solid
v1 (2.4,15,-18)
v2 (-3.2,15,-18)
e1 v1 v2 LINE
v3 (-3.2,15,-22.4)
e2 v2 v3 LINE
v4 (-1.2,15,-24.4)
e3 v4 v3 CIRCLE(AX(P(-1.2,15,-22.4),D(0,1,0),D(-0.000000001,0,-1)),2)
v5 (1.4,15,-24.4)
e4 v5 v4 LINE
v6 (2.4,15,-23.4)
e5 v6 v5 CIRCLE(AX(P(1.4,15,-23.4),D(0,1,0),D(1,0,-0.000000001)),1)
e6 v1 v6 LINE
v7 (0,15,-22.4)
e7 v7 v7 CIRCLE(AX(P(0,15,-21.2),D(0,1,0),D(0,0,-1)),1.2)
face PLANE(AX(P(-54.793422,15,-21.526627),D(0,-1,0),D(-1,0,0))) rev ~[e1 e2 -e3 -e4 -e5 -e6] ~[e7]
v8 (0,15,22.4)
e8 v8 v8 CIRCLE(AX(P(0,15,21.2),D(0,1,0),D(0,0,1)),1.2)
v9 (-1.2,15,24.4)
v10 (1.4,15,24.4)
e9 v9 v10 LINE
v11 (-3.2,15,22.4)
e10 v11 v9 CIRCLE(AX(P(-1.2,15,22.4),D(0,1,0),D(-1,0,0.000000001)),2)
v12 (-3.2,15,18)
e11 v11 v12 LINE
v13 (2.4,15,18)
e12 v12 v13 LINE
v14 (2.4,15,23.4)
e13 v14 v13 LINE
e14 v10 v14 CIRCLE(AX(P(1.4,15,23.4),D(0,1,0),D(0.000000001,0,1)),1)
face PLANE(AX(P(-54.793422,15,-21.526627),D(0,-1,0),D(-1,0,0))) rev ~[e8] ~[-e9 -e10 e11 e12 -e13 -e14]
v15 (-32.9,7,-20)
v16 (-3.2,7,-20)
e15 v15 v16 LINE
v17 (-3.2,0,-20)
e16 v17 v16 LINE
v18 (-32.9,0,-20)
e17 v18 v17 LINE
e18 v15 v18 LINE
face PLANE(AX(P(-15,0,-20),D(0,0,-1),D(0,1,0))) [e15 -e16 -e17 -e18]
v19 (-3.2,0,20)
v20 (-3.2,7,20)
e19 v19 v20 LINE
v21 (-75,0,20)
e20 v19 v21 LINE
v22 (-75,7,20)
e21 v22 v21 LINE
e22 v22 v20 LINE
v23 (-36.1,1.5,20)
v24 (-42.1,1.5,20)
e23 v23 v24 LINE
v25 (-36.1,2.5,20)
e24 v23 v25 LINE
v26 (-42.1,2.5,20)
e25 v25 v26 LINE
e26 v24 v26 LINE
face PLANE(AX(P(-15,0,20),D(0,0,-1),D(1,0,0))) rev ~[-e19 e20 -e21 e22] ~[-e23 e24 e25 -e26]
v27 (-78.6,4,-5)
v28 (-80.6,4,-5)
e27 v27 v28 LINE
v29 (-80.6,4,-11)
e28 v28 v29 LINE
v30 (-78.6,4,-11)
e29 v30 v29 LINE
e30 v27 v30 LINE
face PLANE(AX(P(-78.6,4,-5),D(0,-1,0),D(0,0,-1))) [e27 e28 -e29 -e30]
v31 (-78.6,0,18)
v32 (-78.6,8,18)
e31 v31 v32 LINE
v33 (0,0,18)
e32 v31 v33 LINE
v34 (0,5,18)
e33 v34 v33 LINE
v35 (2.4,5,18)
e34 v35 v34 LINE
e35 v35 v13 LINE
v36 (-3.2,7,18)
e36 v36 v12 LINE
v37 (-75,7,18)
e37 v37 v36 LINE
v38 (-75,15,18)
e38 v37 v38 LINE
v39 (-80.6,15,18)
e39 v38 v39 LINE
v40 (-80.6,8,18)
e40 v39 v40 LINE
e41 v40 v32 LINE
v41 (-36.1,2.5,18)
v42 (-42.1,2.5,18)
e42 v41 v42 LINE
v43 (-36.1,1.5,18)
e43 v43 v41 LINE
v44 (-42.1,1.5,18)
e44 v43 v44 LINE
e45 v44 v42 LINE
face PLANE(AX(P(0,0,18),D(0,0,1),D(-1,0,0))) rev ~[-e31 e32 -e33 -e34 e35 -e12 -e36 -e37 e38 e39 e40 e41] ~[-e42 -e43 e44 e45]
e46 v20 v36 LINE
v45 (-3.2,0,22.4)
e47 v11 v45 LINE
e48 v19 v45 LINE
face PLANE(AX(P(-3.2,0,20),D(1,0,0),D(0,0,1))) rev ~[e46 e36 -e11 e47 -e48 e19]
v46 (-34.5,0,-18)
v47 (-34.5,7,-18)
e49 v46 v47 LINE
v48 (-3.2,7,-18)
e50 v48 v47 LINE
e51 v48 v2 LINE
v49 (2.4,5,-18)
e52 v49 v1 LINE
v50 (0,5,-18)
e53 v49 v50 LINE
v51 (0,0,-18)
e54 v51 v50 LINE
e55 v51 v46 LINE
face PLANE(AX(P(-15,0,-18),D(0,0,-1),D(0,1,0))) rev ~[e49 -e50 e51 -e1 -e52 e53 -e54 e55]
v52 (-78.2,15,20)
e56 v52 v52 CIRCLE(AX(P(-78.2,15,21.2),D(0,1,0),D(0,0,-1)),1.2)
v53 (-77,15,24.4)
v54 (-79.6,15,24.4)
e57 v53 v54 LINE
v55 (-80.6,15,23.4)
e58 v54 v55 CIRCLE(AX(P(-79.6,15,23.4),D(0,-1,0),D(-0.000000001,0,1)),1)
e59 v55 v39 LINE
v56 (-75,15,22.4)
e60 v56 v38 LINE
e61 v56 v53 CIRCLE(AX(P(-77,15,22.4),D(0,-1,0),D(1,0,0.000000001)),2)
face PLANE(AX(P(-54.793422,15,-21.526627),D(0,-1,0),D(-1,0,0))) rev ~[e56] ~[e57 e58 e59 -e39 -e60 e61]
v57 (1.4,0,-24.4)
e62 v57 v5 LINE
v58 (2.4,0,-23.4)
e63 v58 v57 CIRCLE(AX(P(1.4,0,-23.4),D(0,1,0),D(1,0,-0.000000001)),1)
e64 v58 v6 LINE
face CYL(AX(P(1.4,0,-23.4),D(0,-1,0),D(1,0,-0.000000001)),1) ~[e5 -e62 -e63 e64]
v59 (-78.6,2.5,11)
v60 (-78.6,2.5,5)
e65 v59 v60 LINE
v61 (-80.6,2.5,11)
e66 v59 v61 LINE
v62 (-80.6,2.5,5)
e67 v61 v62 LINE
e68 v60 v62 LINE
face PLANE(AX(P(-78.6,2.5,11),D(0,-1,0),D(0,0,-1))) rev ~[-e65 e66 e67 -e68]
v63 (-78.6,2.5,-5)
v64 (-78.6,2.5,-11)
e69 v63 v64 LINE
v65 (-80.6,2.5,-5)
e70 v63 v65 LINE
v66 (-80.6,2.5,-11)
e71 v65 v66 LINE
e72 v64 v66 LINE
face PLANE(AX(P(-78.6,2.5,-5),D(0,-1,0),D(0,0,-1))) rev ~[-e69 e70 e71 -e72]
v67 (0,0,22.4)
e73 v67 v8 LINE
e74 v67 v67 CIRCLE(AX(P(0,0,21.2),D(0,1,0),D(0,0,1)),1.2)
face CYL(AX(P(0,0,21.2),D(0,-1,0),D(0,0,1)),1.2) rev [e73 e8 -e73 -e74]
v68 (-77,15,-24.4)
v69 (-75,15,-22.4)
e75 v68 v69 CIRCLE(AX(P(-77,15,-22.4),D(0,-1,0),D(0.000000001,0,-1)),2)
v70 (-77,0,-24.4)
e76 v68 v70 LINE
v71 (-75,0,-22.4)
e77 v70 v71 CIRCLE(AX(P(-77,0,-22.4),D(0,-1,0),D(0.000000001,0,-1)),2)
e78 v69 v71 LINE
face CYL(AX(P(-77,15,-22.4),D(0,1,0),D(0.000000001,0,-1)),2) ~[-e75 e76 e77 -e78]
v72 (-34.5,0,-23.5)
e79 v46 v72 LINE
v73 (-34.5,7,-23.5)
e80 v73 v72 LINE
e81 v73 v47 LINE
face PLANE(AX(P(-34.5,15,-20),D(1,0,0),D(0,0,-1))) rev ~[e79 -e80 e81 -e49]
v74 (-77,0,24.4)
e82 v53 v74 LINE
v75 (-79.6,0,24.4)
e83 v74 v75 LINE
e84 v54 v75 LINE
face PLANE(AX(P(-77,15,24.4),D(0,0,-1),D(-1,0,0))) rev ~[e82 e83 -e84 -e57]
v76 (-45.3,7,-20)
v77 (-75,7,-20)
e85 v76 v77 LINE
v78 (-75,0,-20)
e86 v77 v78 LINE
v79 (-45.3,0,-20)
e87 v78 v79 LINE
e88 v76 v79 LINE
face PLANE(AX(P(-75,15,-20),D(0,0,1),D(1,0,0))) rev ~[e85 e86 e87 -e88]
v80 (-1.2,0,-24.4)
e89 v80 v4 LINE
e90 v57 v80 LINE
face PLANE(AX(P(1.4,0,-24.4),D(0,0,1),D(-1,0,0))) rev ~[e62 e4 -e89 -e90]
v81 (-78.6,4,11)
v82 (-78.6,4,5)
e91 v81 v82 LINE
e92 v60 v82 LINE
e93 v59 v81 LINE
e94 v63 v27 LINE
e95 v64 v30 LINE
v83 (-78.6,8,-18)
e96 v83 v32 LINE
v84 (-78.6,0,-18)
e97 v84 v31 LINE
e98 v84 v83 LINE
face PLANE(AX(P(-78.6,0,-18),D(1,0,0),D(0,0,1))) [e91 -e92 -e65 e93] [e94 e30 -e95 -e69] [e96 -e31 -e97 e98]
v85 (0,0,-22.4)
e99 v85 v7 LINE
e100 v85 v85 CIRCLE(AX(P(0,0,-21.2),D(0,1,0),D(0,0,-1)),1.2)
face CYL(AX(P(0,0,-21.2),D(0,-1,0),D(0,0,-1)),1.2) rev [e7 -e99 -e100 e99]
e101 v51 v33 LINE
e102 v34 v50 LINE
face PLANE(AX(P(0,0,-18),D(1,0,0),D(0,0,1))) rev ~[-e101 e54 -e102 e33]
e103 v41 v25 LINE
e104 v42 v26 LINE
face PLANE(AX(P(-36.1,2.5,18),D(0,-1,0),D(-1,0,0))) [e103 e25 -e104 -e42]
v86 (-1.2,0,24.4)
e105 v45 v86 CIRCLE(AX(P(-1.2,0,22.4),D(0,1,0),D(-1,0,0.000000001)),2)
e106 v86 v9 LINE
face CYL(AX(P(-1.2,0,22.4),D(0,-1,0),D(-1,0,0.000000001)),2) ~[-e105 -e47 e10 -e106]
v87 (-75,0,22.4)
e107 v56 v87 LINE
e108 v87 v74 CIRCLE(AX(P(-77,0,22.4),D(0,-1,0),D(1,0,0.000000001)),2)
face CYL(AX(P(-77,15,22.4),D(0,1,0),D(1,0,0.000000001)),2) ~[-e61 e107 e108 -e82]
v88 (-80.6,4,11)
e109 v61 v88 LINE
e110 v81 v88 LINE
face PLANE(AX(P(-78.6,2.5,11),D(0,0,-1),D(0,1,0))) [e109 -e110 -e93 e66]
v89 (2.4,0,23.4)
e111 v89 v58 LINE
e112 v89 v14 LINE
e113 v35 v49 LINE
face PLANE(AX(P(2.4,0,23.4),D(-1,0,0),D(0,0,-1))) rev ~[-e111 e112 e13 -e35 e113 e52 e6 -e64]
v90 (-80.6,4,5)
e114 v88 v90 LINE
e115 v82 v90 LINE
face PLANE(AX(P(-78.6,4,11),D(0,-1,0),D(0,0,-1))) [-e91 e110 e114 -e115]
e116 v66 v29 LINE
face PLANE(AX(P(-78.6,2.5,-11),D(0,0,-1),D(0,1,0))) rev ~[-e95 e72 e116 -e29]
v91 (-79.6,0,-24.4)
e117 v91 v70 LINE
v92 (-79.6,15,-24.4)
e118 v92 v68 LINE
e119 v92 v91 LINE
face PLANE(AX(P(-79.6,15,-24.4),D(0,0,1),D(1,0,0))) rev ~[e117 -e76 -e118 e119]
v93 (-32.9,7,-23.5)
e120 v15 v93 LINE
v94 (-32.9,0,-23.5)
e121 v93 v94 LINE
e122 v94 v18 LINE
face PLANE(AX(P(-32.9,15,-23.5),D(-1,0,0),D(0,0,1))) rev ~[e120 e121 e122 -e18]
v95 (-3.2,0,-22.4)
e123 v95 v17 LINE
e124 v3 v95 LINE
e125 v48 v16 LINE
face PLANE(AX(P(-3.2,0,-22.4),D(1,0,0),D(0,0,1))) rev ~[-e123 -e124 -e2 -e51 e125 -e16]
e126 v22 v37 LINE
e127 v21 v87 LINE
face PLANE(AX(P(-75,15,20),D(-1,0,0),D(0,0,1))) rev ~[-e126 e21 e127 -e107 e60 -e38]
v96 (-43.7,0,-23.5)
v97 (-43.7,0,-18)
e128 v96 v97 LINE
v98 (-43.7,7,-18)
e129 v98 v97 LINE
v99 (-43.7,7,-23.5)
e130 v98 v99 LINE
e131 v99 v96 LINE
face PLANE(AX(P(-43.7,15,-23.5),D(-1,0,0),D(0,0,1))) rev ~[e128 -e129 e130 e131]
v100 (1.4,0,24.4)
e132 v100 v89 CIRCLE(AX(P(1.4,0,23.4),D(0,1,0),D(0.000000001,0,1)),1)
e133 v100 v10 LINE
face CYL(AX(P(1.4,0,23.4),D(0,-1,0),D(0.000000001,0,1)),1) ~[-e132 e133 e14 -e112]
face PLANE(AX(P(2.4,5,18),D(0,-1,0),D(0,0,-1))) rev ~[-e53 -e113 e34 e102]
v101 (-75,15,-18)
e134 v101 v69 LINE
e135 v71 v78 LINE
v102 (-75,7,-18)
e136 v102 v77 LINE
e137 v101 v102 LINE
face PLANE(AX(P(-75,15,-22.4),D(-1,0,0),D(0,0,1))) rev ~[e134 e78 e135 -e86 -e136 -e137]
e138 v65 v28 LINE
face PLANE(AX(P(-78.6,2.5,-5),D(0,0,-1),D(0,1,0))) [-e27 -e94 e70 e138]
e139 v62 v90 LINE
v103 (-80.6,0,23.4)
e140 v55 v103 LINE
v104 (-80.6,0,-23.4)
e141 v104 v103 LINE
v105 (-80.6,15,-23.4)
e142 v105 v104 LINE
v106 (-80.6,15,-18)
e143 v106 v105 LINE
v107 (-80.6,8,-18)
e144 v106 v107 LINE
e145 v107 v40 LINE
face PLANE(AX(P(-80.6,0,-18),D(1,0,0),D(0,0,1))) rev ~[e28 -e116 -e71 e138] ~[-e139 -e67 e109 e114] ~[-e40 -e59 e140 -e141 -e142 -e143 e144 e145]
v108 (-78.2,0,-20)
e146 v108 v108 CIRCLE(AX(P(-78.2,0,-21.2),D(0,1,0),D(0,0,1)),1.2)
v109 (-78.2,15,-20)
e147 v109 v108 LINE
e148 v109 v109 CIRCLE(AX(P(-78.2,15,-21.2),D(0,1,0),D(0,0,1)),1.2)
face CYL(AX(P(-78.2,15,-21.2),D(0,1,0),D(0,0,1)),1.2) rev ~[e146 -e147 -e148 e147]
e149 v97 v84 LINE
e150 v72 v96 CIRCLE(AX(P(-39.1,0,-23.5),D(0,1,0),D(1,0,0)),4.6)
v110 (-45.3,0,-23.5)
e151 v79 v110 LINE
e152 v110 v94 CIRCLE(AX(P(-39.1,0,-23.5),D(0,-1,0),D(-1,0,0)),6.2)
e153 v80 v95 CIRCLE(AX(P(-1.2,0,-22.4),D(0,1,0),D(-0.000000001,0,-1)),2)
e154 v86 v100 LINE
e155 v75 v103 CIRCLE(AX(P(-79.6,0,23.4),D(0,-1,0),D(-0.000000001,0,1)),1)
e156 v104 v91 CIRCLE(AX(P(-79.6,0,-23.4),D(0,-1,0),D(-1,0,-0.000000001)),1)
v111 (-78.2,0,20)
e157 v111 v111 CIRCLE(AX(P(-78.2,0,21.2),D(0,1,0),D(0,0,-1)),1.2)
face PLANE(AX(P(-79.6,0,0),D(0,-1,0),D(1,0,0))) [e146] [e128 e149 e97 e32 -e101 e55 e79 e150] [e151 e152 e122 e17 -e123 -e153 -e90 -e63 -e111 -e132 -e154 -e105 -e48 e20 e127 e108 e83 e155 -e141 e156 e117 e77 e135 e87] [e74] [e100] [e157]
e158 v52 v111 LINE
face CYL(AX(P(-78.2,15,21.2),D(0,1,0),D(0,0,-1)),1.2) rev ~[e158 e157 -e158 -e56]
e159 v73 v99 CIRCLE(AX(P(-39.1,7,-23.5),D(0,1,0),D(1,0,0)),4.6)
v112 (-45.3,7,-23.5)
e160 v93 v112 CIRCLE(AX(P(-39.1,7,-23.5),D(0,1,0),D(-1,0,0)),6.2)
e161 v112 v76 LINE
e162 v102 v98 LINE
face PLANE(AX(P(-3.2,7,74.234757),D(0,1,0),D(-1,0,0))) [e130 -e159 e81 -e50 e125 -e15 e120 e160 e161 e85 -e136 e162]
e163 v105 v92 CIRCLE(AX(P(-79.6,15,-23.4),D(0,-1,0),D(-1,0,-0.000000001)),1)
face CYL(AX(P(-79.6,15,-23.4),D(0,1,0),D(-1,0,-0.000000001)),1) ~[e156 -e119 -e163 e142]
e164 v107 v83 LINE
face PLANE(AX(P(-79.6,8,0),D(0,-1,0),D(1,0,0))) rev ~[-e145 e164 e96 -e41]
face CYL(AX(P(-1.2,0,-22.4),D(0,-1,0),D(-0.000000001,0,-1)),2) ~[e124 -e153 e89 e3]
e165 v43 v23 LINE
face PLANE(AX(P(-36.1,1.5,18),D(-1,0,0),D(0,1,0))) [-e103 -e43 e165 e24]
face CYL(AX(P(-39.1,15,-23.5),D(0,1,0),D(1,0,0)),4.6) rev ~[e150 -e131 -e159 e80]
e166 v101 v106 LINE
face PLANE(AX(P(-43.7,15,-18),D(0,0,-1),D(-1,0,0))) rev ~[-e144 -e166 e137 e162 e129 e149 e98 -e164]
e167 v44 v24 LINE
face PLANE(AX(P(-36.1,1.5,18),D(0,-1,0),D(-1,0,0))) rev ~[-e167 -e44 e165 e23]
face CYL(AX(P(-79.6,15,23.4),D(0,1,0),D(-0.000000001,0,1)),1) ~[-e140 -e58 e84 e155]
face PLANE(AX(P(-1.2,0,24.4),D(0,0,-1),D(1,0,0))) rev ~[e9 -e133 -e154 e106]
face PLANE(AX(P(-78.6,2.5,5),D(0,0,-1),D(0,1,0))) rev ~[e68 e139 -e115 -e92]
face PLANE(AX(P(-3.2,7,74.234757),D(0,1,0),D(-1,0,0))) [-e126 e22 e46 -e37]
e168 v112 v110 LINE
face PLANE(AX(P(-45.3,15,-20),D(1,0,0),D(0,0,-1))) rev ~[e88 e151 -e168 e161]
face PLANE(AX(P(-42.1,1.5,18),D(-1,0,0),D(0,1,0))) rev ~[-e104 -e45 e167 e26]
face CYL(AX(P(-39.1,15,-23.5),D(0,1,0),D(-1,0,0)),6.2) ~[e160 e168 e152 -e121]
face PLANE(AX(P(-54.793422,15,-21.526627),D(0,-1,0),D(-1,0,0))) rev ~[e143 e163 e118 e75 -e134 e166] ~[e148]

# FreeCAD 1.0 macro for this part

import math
import FreeCAD as App
import Part
import Sketcher

V = App.Vector
Q = App.Units.Quantity


def add_polygon(sketch, points):
    """Adds a closed chain of lines whose ends are joined by coincident constraints."""
    first, n = sketch.GeometryCount, len(points)
    for a, b in zip(points, points[1:] + points[:1]):
        sketch.addGeometry(Part.LineSegment(App.Vector(*a, 0), App.Vector(*b, 0)), False)
    for i in range(n):
        sketch.addConstraint(Sketcher.Constraint("Coincident", first + i, 2, first + (i + 1) % n, 1))

doc = App.newDocument("Part")
body = doc.addObject("PartDesign::Body", "Body")

# Sketch on XZ plane
sketch1 = body.newObject("Sketcher::SketchObject", "Sketch")
sketch1.AttachmentSupport = (doc.getObject("XZ_Plane"), [""])
sketch1.MapMode = "FlatFace"
sketch1.addGeometry(Part.LineSegment(V(2.4, 23.4, 0), V(2.4, -23.4, 0)), False)
sketch1.addGeometry(Part.ArcOfCircle(Part.Circle(V(1.4, -23.4, 0), V(0, 0, 1), 1), math.radians(-90), math.radians(0)), False)
sketch1.addGeometry(Part.LineSegment(V(1.4, -24.4, 0), V(-1.2, -24.4, 0)), False)
sketch1.addGeometry(Part.ArcOfCircle(Part.Circle(V(-1.2, -22.4, 0), V(0, 0, 1), 2), math.radians(-180), math.radians(-90)), False)
sketch1.addGeometry(Part.LineSegment(V(-3.2, -22.4, 0), V(-3.2, -20, 0)), False)
sketch1.addGeometry(Part.LineSegment(V(-3.2, -20, 0), V(-15, -20, 0)), False)
sketch1.addGeometry(Part.LineSegment(V(-15, -20, 0), V(-15, -18, 0)), False)
sketch1.addGeometry(Part.LineSegment(V(-15, -18, 0), V(0, -18, 0)), False)
sketch1.addGeometry(Part.LineSegment(V(0, -18, 0), V(0, 18, 0)), False)
sketch1.addGeometry(Part.LineSegment(V(0, 18, 0), V(-15, 18, 0)), False)
sketch1.addGeometry(Part.LineSegment(V(-15, 18, 0), V(-15, 20, 0)), False)
sketch1.addGeometry(Part.LineSegment(V(-15, 20, 0), V(-3.2, 20, 0)), False)
sketch1.addGeometry(Part.LineSegment(V(-3.2, 20, 0), V(-3.2, 22.4, 0)), False)
sketch1.addGeometry(Part.ArcOfCircle(Part.Circle(V(-1.2, 22.4, 0), V(0, 0, 1), 2), math.radians(90), math.radians(180)), False)
sketch1.addGeometry(Part.LineSegment(V(-1.2, 24.4, 0), V(1.4, 24.4, 0)), False)
sketch1.addGeometry(Part.ArcOfCircle(Part.Circle(V(1.4, 23.4, 0), V(0, 0, 1), 1), math.radians(0), math.radians(90)), False)
sketch1.addGeometry(Part.Circle(V(0, 21.2, 0), V(0, 0, 1), 1.2), False)
sketch1.addGeometry(Part.Circle(V(0, -21.2, 0), V(0, 0, 1), 1.2), False)
sketch1.addConstraint(Sketcher.Constraint("Tangent", 0, 2, 1, 2))
sketch1.addConstraint(Sketcher.Constraint("Tangent", 1, 1, 2, 1))
sketch1.addConstraint(Sketcher.Constraint("Tangent", 2, 2, 3, 2))
sketch1.addConstraint(Sketcher.Constraint("Tangent", 3, 1, 4, 1))
sketch1.addConstraint(Sketcher.Constraint("Coincident", 4, 2, 5, 1))
sketch1.addConstraint(Sketcher.Constraint("Coincident", 5, 2, 6, 1))
sketch1.addConstraint(Sketcher.Constraint("Coincident", 6, 2, 7, 1))
sketch1.addConstraint(Sketcher.Constraint("Coincident", 7, 2, 8, 1))
sketch1.addConstraint(Sketcher.Constraint("Coincident", 8, 2, 9, 1))
sketch1.addConstraint(Sketcher.Constraint("Coincident", 9, 2, 10, 1))
sketch1.addConstraint(Sketcher.Constraint("Coincident", 10, 2, 11, 1))
sketch1.addConstraint(Sketcher.Constraint("Coincident", 11, 2, 12, 1))
sketch1.addConstraint(Sketcher.Constraint("Tangent", 12, 2, 13, 2))
sketch1.addConstraint(Sketcher.Constraint("Tangent", 13, 1, 14, 1))
sketch1.addConstraint(Sketcher.Constraint("Tangent", 14, 2, 15, 2))
sketch1.addConstraint(Sketcher.Constraint("Tangent", 15, 1, 0, 1))
sketch1.addConstraint(Sketcher.Constraint("Vertical", 0))
sketch1.addConstraint(Sketcher.Constraint("Horizontal", 2))
sketch1.addConstraint(Sketcher.Constraint("Vertical", 4))
sketch1.addConstraint(Sketcher.Constraint("Horizontal", 5))
sketch1.addConstraint(Sketcher.Constraint("Vertical", 6))
sketch1.addConstraint(Sketcher.Constraint("Horizontal", 7))
sketch1.addConstraint(Sketcher.Constraint("Vertical", 8))
sketch1.addConstraint(Sketcher.Constraint("Horizontal", 9))
sketch1.addConstraint(Sketcher.Constraint("Vertical", 10))
sketch1.addConstraint(Sketcher.Constraint("Horizontal", 11))
sketch1.addConstraint(Sketcher.Constraint("Vertical", 12))
sketch1.addConstraint(Sketcher.Constraint("Horizontal", 14))
sketch1.addConstraint(Sketcher.Constraint("Equal", 3, 13))
sketch1.addConstraint(Sketcher.Constraint("Equal", 1, 15))
sketch1.addConstraint(Sketcher.Constraint("Equal", 16, 17))
sketch1.addConstraint(Sketcher.Constraint("Symmetric", 16, 3, 17, 3, -1, 1))
sketch1.addConstraint(Sketcher.Constraint("Symmetric", 7, 2, 8, 2, -1, 1))
sketch1.addConstraint(Sketcher.Constraint("Symmetric", 3, 3, 13, 3, -1))
sketch1.addConstraint(Sketcher.Constraint("Symmetric", 5, 2, 10, 2, -1))
sketch1.addConstraint(Sketcher.Constraint("PointOnObject", 16, 3, -2))
sketch1.addConstraint(Sketcher.Constraint("Radius", 1, Q("1 mm")))
sketch1.addConstraint(Sketcher.Constraint("Radius", 3, Q("2 mm")))
sketch1.addConstraint(Sketcher.Constraint("Diameter", 16, Q("2.4 mm")))
sketch1.addConstraint(Sketcher.Constraint("DistanceX", 7, 1, 7, 2, Q("15 mm")))
sketch1.addConstraint(Sketcher.Constraint("DistanceY", 6, 1, 6, 2, Q("2 mm")))
sketch1.addConstraint(Sketcher.Constraint("DistanceY", 8, 1, 8, 2, Q("36 mm")))
sketch1.addConstraint(Sketcher.Constraint("DistanceX", 2, 2, 2, 1, Q("2.6 mm")))
sketch1.addConstraint(Sketcher.Constraint("DistanceX", 5, 2, 5, 1, Q("11.8 mm")))
sketch1.addConstraint(Sketcher.Constraint("DistanceY", 0, 2, 0, 1, Q("46.8 mm")))
sketch1.addConstraint(Sketcher.Constraint("DistanceY", -1, 1, 16, 3, Q("21.2 mm")))
pad1 = body.newObject("PartDesign::Pad", "Pad")
pad1.Profile = sketch1
pad1.Length = 15
pad1.Reversed = True

# Sketch on XZ plane
sketch2 = body.newObject("Sketcher::SketchObject", "Sketch001")
sketch2.AttachmentSupport = (doc.getObject("XZ_Plane"), [""])
sketch2.MapMode = "FlatFace"
add_polygon(sketch2, [(-15, -18), (-15, 18), (0, 18), (0, -18)])  # lines 0-3
sketch2.addConstraint(Sketcher.Constraint("Vertical", 0))
sketch2.addConstraint(Sketcher.Constraint("Horizontal", 1))
sketch2.addConstraint(Sketcher.Constraint("Vertical", 2))
sketch2.addConstraint(Sketcher.Constraint("Horizontal", 3))
sketch2.addConstraint(Sketcher.Constraint("Symmetric", 1, 2, 2, 2, -1, 1))
sketch2.addConstraint(Sketcher.Constraint("DistanceX", 1, 1, 1, 2, Q("15 mm")))
sketch2.addConstraint(Sketcher.Constraint("DistanceY", 0, 1, 0, 2, Q("36 mm")))
pad2 = body.newObject("PartDesign::Pad", "Pad001")
pad2.Profile = sketch2
pad2.Length = 1.5
pad2.Reversed = True

# Sketch on YZ plane
sketch3 = body.newObject("Sketcher::SketchObject", "Sketch002")
sketch3.AttachmentSupport = (doc.getObject("YZ_Plane"), [""])
sketch3.MapMode = "FlatFace"
sketch3.AttachmentOffset = App.Placement(V(0, 0, -15), App.Rotation())
add_polygon(sketch3, [(0, -18), (15, -18), (15, -20), (0, -20)])  # lines 0-3
sketch3.addConstraint(Sketcher.Constraint("Horizontal", 0))
sketch3.addConstraint(Sketcher.Constraint("Vertical", 1))
sketch3.addConstraint(Sketcher.Constraint("Horizontal", 2))
sketch3.addConstraint(Sketcher.Constraint("Vertical", 3))
sketch3.addConstraint(Sketcher.Constraint("PointOnObject", 2, 2, -2))
sketch3.addConstraint(Sketcher.Constraint("DistanceX", 0, 1, 0, 2, Q("15 mm")))
sketch3.addConstraint(Sketcher.Constraint("DistanceY", 1, 2, 1, 1, Q("2 mm")))
sketch3.addConstraint(Sketcher.Constraint("DistanceY", 0, 2, -1, 1, Q("18 mm")))
pad3 = body.newObject("PartDesign::Pad", "Pad002")
pad3.Profile = sketch3
pad3.Length = 19.5
pad3.Reversed = True

# Sketch on XZ plane
sketch4 = body.newObject("Sketcher::SketchObject", "Sketch003")
sketch4.AttachmentSupport = (doc.getObject("XZ_Plane"), [""])
sketch4.MapMode = "FlatFace"
sketch4.AttachmentOffset = App.Placement(V(0, 0, -15), App.Rotation())
sketch4.addGeometry(Part.LineSegment(V(-45.3, -23.5, 0), V(-45.3, -20, 0)), False)
sketch4.addGeometry(Part.LineSegment(V(-45.3, -20, 0), V(-75, -20, 0)), False)
sketch4.addGeometry(Part.LineSegment(V(-75, -20, 0), V(-75, -22.4, 0)), False)
sketch4.addGeometry(Part.ArcOfCircle(Part.Circle(V(-77, -22.4, 0), V(0, 0, 1), 2), math.radians(-90), math.radians(0)), False)
sketch4.addGeometry(Part.LineSegment(V(-77, -24.4, 0), V(-79.6, -24.4, 0)), False)
sketch4.addGeometry(Part.ArcOfCircle(Part.Circle(V(-79.6, -23.4, 0), V(0, 0, 1), 1), math.radians(-180), math.radians(-90)), False)
sketch4.addGeometry(Part.LineSegment(V(-80.6, -23.4, 0), V(-80.6, -18, 0)), False)
sketch4.addGeometry(Part.LineSegment(V(-80.6, -18, 0), V(-43.7, -18, 0)), False)
sketch4.addGeometry(Part.LineSegment(V(-43.7, -18, 0), V(-43.7, -23.5, 0)), False)
sketch4.addGeometry(Part.ArcOfCircle(Part.Circle(V(-39.1, -23.5, 0), V(0, 0, 1), 4.6), math.radians(180), math.radians(360)), False)
sketch4.addGeometry(Part.LineSegment(V(-34.5, -23.5, 0), V(-34.5, -20, 0)), False)
sketch4.addGeometry(Part.LineSegment(V(-34.5, -20, 0), V(-32.9, -20, 0)), False)
sketch4.addGeometry(Part.LineSegment(V(-32.9, -20, 0), V(-32.9, -23.5, 0)), False)
sketch4.addGeometry(Part.ArcOfCircle(Part.Circle(V(-39.1, -23.5, 0), V(0, 0, 1), 6.2), math.radians(180), math.radians(360)), False)
sketch4.addGeometry(Part.Circle(V(-78.2, -21.2, 0), V(0, 0, 1), 1.2), False)
sketch4.addGeometry(Part.LineSegment(V(-15, 18, 0), V(-80.6, 18, 0)), False)
sketch4.addGeometry(Part.LineSegment(V(-80.6, 18, 0), V(-80.6, 23.4, 0)), False)
sketch4.addGeometry(Part.ArcOfCircle(Part.Circle(V(-79.6, 23.4, 0), V(0, 0, 1), 1), math.radians(90), math.radians(180)), False)
sketch4.addGeometry(Part.LineSegment(V(-79.6, 24.4, 0), V(-77, 24.4, 0)), False)
sketch4.addGeometry(Part.ArcOfCircle(Part.Circle(V(-77, 22.4, 0), V(0, 0, 1), 2), math.radians(0), math.radians(90)), False)
sketch4.addGeometry(Part.LineSegment(V(-75, 22.4, 0), V(-75, 20, 0)), False)
sketch4.addGeometry(Part.LineSegment(V(-75, 20, 0), V(-15, 20, 0)), False)
sketch4.addGeometry(Part.LineSegment(V(-15, 20, 0), V(-15, 18, 0)), False)
sketch4.addGeometry(Part.Circle(V(-78.2, 21.2, 0), V(0, 0, 1), 1.2), False)
sketch4.addConstraint(Sketcher.Constraint("Coincident", 0, 2, 1, 1))
sketch4.addConstraint(Sketcher.Constraint("Coincident", 1, 2, 2, 1))
sketch4.addConstraint(Sketcher.Constraint("Tangent", 2, 2, 3, 2))
sketch4.addConstraint(Sketcher.Constraint("Tangent", 3, 1, 4, 1))
sketch4.addConstraint(Sketcher.Constraint("Tangent", 4, 2, 5, 2))
sketch4.addConstraint(Sketcher.Constraint("Tangent", 5, 1, 6, 1))
sketch4.addConstraint(Sketcher.Constraint("Coincident", 6, 2, 7, 1))
sketch4.addConstraint(Sketcher.Constraint("Coincident", 7, 2, 8, 1))
sketch4.addConstraint(Sketcher.Constraint("Tangent", 8, 2, 9, 1))
sketch4.addConstraint(Sketcher.Constraint("Tangent", 9, 2, 10, 1))
sketch4.addConstraint(Sketcher.Constraint("Coincident", 10, 2, 11, 1))
sketch4.addConstraint(Sketcher.Constraint("Coincident", 11, 2, 12, 1))
sketch4.addConstraint(Sketcher.Constraint("Tangent", 12, 2, 13, 2))
sketch4.addConstraint(Sketcher.Constraint("Tangent", 13, 1, 0, 1))
sketch4.addConstraint(Sketcher.Constraint("Coincident", 15, 2, 16, 1))
sketch4.addConstraint(Sketcher.Constraint("Tangent", 16, 2, 17, 2))
sketch4.addConstraint(Sketcher.Constraint("Tangent", 17, 1, 18, 1))
sketch4.addConstraint(Sketcher.Constraint("Tangent", 18, 2, 19, 2))
sketch4.addConstraint(Sketcher.Constraint("Tangent", 19, 1, 20, 1))
sketch4.addConstraint(Sketcher.Constraint("Coincident", 20, 2, 21, 1))
sketch4.addConstraint(Sketcher.Constraint("Coincident", 21, 2, 22, 1))
sketch4.addConstraint(Sketcher.Constraint("Coincident", 22, 2, 15, 1))
sketch4.addConstraint(Sketcher.Constraint("Vertical", 0))
sketch4.addConstraint(Sketcher.Constraint("Horizontal", 1))
sketch4.addConstraint(Sketcher.Constraint("Vertical", 2))
sketch4.addConstraint(Sketcher.Constraint("Horizontal", 4))
sketch4.addConstraint(Sketcher.Constraint("Vertical", 6))
sketch4.addConstraint(Sketcher.Constraint("Horizontal", 7))
sketch4.addConstraint(Sketcher.Constraint("Vertical", 8))
sketch4.addConstraint(Sketcher.Constraint("Vertical", 10))
sketch4.addConstraint(Sketcher.Constraint("Horizontal", 11))
sketch4.addConstraint(Sketcher.Constraint("Vertical", 12))
sketch4.addConstraint(Sketcher.Constraint("Horizontal", 15))
sketch4.addConstraint(Sketcher.Constraint("Vertical", 16))
sketch4.addConstraint(Sketcher.Constraint("Horizontal", 18))
sketch4.addConstraint(Sketcher.Constraint("Vertical", 20))
sketch4.addConstraint(Sketcher.Constraint("Horizontal", 21))
sketch4.addConstraint(Sketcher.Constraint("Vertical", 22))
sketch4.addConstraint(Sketcher.Constraint("Coincident", 13, 3, 9, 3))
sketch4.addConstraint(Sketcher.Constraint("Equal", 5, 17))
sketch4.addConstraint(Sketcher.Constraint("Equal", 3, 19))
sketch4.addConstraint(Sketcher.Constraint("Equal", 14, 23))
sketch4.addConstraint(Sketcher.Constraint("Symmetric", 5, 3, 17, 3, -1))
sketch4.addConstraint(Sketcher.Constraint("Symmetric", 14, 3, 23, 3, -1))
sketch4.addConstraint(Sketcher.Constraint("Symmetric", 1, 2, 20, 2, -1))
sketch4.addConstraint(Sketcher.Constraint("Horizontal", 1, 2, 10, 2))
sketch4.addConstraint(Sketcher.Constraint("Equal", 6, 16))
sketch4.addConstraint(Sketcher.Constraint("Radius", 3, Q("2 mm")))
sketch4.addConstraint(Sketcher.Constraint("Radius", 5, Q("1 mm")))
sketch4.addConstraint(Sketcher.Constraint("Diameter", 14, Q("2.4 mm")))
sketch4.addConstraint(Sketcher.Constraint("Radius", 9, Q("4.6 mm")))
sketch4.addConstraint(Sketcher.Constraint("Radius", 13, Q("6.2 mm")))
sketch4.addConstraint(Sketcher.Constraint("DistanceX", 21, 1, 21, 2, Q("60 mm")))
sketch4.addConstraint(Sketcher.Constraint("DistanceY", 22, 2, 22, 1, Q("2 mm")))
sketch4.addConstraint(Sketcher.Constraint("DistanceX", 1, 2, 1, 1, Q("29.7 mm")))
sketch4.addConstraint(Sketcher.Constraint("DistanceX", 4, 2, 4, 1, Q("2.6 mm")))
sketch4.addConstraint(Sketcher.Constraint("DistanceY", 0, 1, 0, 2, Q("3.5 mm")))
sketch4.addConstraint(Sketcher.Constraint("DistanceY", 2, 2, 2, 1, Q("2.4 mm")))
sketch4.addConstraint(Sketcher.Constraint("DistanceX", 3, 3, -1, 1, Q("77 mm")))
sketch4.addConstraint(Sketcher.Constraint("DistanceY", 0, 2, -1, 1, Q("20 mm")))
sketch4.addConstraint(Sketcher.Constraint("DistanceX", 14, 3, -1, 1, Q("78.2 mm")))
sketch4.addConstraint(Sketcher.Constraint("DistanceY", 14, 3, -1, 1, Q("21.2 mm")))
pad4 = body.newObject("PartDesign::Pad", "Pad003")
pad4.Profile = sketch4
pad4.Length = 15

# Sketch on XZ plane
sketch5 = body.newObject("Sketcher::SketchObject", "Sketch004")
sketch5.AttachmentSupport = (doc.getObject("XZ_Plane"), [""])
sketch5.MapMode = "FlatFace"
add_polygon(sketch5, [(-80.6, 18), (-80.6, -18), (-78.6, -18), (-78.6, 18)])  # lines 0-3
sketch5.addConstraint(Sketcher.Constraint("Vertical", 0))
sketch5.addConstraint(Sketcher.Constraint("Horizontal", 1))
sketch5.addConstraint(Sketcher.Constraint("Vertical", 2))
sketch5.addConstraint(Sketcher.Constraint("Horizontal", 3))
sketch5.addConstraint(Sketcher.Constraint("DistanceX", 1, 1, 1, 2, Q("2 mm")))
sketch5.addConstraint(Sketcher.Constraint("DistanceY", 0, 2, 0, 1, Q("36 mm")))
sketch5.addConstraint(Sketcher.Constraint("DistanceY", 0, 2, -1, 1, Q("18 mm")))
sketch5.addConstraint(Sketcher.Constraint("DistanceX", 0, 2, -1, 1, Q("80.6 mm")))
pad5 = body.newObject("PartDesign::Pad", "Pad004")
pad5.Profile = sketch5
pad5.Length = 8
pad5.Reversed = True

# Sketch on XY plane
sketch6 = body.newObject("Sketcher::SketchObject", "Sketch005")
sketch6.AttachmentSupport = (doc.getObject("XY_Plane"), [""])
sketch6.MapMode = "FlatFace"
sketch6.AttachmentOffset = App.Placement(V(0, 0, 18), App.Rotation())
add_polygon(sketch6, [(-36.1, 2.5), (-36.1, 1.5), (-42.1, 1.5), (-42.1, 2.5)])  # lines 0-3
sketch6.addConstraint(Sketcher.Constraint("Vertical", 0))
sketch6.addConstraint(Sketcher.Constraint("Horizontal", 1))
sketch6.addConstraint(Sketcher.Constraint("Vertical", 2))
sketch6.addConstraint(Sketcher.Constraint("Horizontal", 3))
sketch6.addConstraint(Sketcher.Constraint("DistanceX", 1, 2, 1, 1, Q("6 mm")))
sketch6.addConstraint(Sketcher.Constraint("DistanceY", 0, 2, 0, 1, Q("1 mm")))
sketch6.addConstraint(Sketcher.Constraint("DistanceX", 0, 2, -1, 1, Q("36.1 mm")))
sketch6.addConstraint(Sketcher.Constraint("DistanceY", -1, 1, 0, 2, Q("1.5 mm")))
pocket1 = body.newObject("PartDesign::Pocket", "Pocket")
pocket1.Profile = sketch6
pocket1.Length = 5
pocket1.Reversed = True

# Sketch on YZ plane
sketch7 = body.newObject("Sketcher::SketchObject", "Sketch006")
sketch7.AttachmentSupport = (doc.getObject("YZ_Plane"), [""])
sketch7.MapMode = "FlatFace"
sketch7.AttachmentOffset = App.Placement(V(0, 0, -78.6), App.Rotation())
add_polygon(sketch7, [(4, -5), (2.5, -5), (2.5, -11), (4, -11)])  # lines 0-3
add_polygon(sketch7, [(4, 11), (2.5, 11), (2.5, 5), (4, 5)])  # lines 4-7
sketch7.addConstraint(Sketcher.Constraint("Horizontal", 0))
sketch7.addConstraint(Sketcher.Constraint("Vertical", 1))
sketch7.addConstraint(Sketcher.Constraint("Horizontal", 2))
sketch7.addConstraint(Sketcher.Constraint("Vertical", 3))
sketch7.addConstraint(Sketcher.Constraint("Horizontal", 4))
sketch7.addConstraint(Sketcher.Constraint("Vertical", 5))
sketch7.addConstraint(Sketcher.Constraint("Horizontal", 6))
sketch7.addConstraint(Sketcher.Constraint("Vertical", 7))
sketch7.addConstraint(Sketcher.Constraint("Symmetric", 1, 2, 4, 2, -1))
sketch7.addConstraint(Sketcher.Constraint("Symmetric", 3, 2, 6, 2, -1))
sketch7.addConstraint(Sketcher.Constraint("DistanceY", 1, 2, 1, 1, Q("6 mm")))
sketch7.addConstraint(Sketcher.Constraint("DistanceX", 0, 2, 0, 1, Q("1.5 mm")))
sketch7.addConstraint(Sketcher.Constraint("DistanceY", 0, 2, -1, 1, Q("5 mm")))
sketch7.addConstraint(Sketcher.Constraint("DistanceX", -1, 1, 2, 2, Q("4 mm")))
pocket2 = body.newObject("PartDesign::Pocket", "Pocket001")
pocket2.Profile = sketch7
pocket2.Length = 5

# Sketch on XY plane
sketch8 = body.newObject("Sketcher::SketchObject", "Sketch007")
sketch8.AttachmentSupport = (doc.getObject("XY_Plane"), [""])
sketch8.MapMode = "FlatFace"
sketch8.AttachmentOffset = App.Placement(V(0, 0, -20), App.Rotation())
add_polygon(sketch8, [(-3, 15), (-3, 7), (-75, 7), (-75, 15)])  # lines 0-3
sketch8.addConstraint(Sketcher.Constraint("Vertical", 0))
sketch8.addConstraint(Sketcher.Constraint("Horizontal", 1))
sketch8.addConstraint(Sketcher.Constraint("Vertical", 2))
sketch8.addConstraint(Sketcher.Constraint("Horizontal", 3))
sketch8.addConstraint(Sketcher.Constraint("DistanceY", 0, 2, 0, 1, Q("8 mm")))
sketch8.addConstraint(Sketcher.Constraint("DistanceX", 1, 2, 1, 1, Q("71.8 mm")))
sketch8.addConstraint(Sketcher.Constraint("DistanceY", -1, 1, 0, 2, Q("7 mm")))
sketch8.addConstraint(Sketcher.Constraint("DistanceX", 1, 2, -1, 1, Q("75 mm")))
pocket3 = body.newObject("PartDesign::Pocket", "Pocket002")
pocket3.Profile = sketch8
pocket3.Type = "ThroughAll"
pocket3.Midplane = True

# Sketch on YZ plane
sketch9 = body.newObject("Sketcher::SketchObject", "Sketch008")
sketch9.AttachmentSupport = (doc.getObject("YZ_Plane"), [""])
sketch9.MapMode = "FlatFace"
sketch9.AttachmentOffset = App.Placement(V(0, 0, 2.4), App.Rotation())
add_polygon(sketch9, [(15, 18), (5, 18), (5, -18), (15, -18)])  # lines 0-3
sketch9.addConstraint(Sketcher.Constraint("Horizontal", 0))
sketch9.addConstraint(Sketcher.Constraint("Vertical", 1))
sketch9.addConstraint(Sketcher.Constraint("Horizontal", 2))
sketch9.addConstraint(Sketcher.Constraint("Vertical", 3))
sketch9.addConstraint(Sketcher.Constraint("DistanceX", 0, 2, 0, 1, Q("10 mm")))
sketch9.addConstraint(Sketcher.Constraint("DistanceY", 1, 2, 1, 1, Q("36 mm")))
sketch9.addConstraint(Sketcher.Constraint("DistanceX", -1, 1, 0, 2, Q("5 mm")))
sketch9.addConstraint(Sketcher.Constraint("DistanceY", -1, 1, 0, 2, Q("18 mm")))
pocket4 = body.newObject("PartDesign::Pocket", "Pocket003")
pocket4.Profile = sketch9
pocket4.Length = 10

# Sketch on XZ plane
sketch10 = body.newObject("Sketcher::SketchObject", "Sketch009")
sketch10.AttachmentSupport = (doc.getObject("XZ_Plane"), [""])
sketch10.MapMode = "FlatFace"
add_polygon(sketch10, [(-15, 18), (-15, -18), (0, -18), (0, 18)])  # lines 0-3
sketch10.addConstraint(Sketcher.Constraint("Vertical", 0))
sketch10.addConstraint(Sketcher.Constraint("Horizontal", 1))
sketch10.addConstraint(Sketcher.Constraint("Vertical", 2))
sketch10.addConstraint(Sketcher.Constraint("Horizontal", 3))
sketch10.addConstraint(Sketcher.Constraint("Symmetric", 1, 2, 2, 2, -1, 1))
sketch10.addConstraint(Sketcher.Constraint("DistanceX", 1, 1, 1, 2, Q("15 mm")))
sketch10.addConstraint(Sketcher.Constraint("DistanceY", 0, 2, 0, 1, Q("36 mm")))
pocket5 = body.newObject("PartDesign::Pocket", "Pocket004")
pocket5.Profile = sketch10
pocket5.Length = 10

doc.recompute()
